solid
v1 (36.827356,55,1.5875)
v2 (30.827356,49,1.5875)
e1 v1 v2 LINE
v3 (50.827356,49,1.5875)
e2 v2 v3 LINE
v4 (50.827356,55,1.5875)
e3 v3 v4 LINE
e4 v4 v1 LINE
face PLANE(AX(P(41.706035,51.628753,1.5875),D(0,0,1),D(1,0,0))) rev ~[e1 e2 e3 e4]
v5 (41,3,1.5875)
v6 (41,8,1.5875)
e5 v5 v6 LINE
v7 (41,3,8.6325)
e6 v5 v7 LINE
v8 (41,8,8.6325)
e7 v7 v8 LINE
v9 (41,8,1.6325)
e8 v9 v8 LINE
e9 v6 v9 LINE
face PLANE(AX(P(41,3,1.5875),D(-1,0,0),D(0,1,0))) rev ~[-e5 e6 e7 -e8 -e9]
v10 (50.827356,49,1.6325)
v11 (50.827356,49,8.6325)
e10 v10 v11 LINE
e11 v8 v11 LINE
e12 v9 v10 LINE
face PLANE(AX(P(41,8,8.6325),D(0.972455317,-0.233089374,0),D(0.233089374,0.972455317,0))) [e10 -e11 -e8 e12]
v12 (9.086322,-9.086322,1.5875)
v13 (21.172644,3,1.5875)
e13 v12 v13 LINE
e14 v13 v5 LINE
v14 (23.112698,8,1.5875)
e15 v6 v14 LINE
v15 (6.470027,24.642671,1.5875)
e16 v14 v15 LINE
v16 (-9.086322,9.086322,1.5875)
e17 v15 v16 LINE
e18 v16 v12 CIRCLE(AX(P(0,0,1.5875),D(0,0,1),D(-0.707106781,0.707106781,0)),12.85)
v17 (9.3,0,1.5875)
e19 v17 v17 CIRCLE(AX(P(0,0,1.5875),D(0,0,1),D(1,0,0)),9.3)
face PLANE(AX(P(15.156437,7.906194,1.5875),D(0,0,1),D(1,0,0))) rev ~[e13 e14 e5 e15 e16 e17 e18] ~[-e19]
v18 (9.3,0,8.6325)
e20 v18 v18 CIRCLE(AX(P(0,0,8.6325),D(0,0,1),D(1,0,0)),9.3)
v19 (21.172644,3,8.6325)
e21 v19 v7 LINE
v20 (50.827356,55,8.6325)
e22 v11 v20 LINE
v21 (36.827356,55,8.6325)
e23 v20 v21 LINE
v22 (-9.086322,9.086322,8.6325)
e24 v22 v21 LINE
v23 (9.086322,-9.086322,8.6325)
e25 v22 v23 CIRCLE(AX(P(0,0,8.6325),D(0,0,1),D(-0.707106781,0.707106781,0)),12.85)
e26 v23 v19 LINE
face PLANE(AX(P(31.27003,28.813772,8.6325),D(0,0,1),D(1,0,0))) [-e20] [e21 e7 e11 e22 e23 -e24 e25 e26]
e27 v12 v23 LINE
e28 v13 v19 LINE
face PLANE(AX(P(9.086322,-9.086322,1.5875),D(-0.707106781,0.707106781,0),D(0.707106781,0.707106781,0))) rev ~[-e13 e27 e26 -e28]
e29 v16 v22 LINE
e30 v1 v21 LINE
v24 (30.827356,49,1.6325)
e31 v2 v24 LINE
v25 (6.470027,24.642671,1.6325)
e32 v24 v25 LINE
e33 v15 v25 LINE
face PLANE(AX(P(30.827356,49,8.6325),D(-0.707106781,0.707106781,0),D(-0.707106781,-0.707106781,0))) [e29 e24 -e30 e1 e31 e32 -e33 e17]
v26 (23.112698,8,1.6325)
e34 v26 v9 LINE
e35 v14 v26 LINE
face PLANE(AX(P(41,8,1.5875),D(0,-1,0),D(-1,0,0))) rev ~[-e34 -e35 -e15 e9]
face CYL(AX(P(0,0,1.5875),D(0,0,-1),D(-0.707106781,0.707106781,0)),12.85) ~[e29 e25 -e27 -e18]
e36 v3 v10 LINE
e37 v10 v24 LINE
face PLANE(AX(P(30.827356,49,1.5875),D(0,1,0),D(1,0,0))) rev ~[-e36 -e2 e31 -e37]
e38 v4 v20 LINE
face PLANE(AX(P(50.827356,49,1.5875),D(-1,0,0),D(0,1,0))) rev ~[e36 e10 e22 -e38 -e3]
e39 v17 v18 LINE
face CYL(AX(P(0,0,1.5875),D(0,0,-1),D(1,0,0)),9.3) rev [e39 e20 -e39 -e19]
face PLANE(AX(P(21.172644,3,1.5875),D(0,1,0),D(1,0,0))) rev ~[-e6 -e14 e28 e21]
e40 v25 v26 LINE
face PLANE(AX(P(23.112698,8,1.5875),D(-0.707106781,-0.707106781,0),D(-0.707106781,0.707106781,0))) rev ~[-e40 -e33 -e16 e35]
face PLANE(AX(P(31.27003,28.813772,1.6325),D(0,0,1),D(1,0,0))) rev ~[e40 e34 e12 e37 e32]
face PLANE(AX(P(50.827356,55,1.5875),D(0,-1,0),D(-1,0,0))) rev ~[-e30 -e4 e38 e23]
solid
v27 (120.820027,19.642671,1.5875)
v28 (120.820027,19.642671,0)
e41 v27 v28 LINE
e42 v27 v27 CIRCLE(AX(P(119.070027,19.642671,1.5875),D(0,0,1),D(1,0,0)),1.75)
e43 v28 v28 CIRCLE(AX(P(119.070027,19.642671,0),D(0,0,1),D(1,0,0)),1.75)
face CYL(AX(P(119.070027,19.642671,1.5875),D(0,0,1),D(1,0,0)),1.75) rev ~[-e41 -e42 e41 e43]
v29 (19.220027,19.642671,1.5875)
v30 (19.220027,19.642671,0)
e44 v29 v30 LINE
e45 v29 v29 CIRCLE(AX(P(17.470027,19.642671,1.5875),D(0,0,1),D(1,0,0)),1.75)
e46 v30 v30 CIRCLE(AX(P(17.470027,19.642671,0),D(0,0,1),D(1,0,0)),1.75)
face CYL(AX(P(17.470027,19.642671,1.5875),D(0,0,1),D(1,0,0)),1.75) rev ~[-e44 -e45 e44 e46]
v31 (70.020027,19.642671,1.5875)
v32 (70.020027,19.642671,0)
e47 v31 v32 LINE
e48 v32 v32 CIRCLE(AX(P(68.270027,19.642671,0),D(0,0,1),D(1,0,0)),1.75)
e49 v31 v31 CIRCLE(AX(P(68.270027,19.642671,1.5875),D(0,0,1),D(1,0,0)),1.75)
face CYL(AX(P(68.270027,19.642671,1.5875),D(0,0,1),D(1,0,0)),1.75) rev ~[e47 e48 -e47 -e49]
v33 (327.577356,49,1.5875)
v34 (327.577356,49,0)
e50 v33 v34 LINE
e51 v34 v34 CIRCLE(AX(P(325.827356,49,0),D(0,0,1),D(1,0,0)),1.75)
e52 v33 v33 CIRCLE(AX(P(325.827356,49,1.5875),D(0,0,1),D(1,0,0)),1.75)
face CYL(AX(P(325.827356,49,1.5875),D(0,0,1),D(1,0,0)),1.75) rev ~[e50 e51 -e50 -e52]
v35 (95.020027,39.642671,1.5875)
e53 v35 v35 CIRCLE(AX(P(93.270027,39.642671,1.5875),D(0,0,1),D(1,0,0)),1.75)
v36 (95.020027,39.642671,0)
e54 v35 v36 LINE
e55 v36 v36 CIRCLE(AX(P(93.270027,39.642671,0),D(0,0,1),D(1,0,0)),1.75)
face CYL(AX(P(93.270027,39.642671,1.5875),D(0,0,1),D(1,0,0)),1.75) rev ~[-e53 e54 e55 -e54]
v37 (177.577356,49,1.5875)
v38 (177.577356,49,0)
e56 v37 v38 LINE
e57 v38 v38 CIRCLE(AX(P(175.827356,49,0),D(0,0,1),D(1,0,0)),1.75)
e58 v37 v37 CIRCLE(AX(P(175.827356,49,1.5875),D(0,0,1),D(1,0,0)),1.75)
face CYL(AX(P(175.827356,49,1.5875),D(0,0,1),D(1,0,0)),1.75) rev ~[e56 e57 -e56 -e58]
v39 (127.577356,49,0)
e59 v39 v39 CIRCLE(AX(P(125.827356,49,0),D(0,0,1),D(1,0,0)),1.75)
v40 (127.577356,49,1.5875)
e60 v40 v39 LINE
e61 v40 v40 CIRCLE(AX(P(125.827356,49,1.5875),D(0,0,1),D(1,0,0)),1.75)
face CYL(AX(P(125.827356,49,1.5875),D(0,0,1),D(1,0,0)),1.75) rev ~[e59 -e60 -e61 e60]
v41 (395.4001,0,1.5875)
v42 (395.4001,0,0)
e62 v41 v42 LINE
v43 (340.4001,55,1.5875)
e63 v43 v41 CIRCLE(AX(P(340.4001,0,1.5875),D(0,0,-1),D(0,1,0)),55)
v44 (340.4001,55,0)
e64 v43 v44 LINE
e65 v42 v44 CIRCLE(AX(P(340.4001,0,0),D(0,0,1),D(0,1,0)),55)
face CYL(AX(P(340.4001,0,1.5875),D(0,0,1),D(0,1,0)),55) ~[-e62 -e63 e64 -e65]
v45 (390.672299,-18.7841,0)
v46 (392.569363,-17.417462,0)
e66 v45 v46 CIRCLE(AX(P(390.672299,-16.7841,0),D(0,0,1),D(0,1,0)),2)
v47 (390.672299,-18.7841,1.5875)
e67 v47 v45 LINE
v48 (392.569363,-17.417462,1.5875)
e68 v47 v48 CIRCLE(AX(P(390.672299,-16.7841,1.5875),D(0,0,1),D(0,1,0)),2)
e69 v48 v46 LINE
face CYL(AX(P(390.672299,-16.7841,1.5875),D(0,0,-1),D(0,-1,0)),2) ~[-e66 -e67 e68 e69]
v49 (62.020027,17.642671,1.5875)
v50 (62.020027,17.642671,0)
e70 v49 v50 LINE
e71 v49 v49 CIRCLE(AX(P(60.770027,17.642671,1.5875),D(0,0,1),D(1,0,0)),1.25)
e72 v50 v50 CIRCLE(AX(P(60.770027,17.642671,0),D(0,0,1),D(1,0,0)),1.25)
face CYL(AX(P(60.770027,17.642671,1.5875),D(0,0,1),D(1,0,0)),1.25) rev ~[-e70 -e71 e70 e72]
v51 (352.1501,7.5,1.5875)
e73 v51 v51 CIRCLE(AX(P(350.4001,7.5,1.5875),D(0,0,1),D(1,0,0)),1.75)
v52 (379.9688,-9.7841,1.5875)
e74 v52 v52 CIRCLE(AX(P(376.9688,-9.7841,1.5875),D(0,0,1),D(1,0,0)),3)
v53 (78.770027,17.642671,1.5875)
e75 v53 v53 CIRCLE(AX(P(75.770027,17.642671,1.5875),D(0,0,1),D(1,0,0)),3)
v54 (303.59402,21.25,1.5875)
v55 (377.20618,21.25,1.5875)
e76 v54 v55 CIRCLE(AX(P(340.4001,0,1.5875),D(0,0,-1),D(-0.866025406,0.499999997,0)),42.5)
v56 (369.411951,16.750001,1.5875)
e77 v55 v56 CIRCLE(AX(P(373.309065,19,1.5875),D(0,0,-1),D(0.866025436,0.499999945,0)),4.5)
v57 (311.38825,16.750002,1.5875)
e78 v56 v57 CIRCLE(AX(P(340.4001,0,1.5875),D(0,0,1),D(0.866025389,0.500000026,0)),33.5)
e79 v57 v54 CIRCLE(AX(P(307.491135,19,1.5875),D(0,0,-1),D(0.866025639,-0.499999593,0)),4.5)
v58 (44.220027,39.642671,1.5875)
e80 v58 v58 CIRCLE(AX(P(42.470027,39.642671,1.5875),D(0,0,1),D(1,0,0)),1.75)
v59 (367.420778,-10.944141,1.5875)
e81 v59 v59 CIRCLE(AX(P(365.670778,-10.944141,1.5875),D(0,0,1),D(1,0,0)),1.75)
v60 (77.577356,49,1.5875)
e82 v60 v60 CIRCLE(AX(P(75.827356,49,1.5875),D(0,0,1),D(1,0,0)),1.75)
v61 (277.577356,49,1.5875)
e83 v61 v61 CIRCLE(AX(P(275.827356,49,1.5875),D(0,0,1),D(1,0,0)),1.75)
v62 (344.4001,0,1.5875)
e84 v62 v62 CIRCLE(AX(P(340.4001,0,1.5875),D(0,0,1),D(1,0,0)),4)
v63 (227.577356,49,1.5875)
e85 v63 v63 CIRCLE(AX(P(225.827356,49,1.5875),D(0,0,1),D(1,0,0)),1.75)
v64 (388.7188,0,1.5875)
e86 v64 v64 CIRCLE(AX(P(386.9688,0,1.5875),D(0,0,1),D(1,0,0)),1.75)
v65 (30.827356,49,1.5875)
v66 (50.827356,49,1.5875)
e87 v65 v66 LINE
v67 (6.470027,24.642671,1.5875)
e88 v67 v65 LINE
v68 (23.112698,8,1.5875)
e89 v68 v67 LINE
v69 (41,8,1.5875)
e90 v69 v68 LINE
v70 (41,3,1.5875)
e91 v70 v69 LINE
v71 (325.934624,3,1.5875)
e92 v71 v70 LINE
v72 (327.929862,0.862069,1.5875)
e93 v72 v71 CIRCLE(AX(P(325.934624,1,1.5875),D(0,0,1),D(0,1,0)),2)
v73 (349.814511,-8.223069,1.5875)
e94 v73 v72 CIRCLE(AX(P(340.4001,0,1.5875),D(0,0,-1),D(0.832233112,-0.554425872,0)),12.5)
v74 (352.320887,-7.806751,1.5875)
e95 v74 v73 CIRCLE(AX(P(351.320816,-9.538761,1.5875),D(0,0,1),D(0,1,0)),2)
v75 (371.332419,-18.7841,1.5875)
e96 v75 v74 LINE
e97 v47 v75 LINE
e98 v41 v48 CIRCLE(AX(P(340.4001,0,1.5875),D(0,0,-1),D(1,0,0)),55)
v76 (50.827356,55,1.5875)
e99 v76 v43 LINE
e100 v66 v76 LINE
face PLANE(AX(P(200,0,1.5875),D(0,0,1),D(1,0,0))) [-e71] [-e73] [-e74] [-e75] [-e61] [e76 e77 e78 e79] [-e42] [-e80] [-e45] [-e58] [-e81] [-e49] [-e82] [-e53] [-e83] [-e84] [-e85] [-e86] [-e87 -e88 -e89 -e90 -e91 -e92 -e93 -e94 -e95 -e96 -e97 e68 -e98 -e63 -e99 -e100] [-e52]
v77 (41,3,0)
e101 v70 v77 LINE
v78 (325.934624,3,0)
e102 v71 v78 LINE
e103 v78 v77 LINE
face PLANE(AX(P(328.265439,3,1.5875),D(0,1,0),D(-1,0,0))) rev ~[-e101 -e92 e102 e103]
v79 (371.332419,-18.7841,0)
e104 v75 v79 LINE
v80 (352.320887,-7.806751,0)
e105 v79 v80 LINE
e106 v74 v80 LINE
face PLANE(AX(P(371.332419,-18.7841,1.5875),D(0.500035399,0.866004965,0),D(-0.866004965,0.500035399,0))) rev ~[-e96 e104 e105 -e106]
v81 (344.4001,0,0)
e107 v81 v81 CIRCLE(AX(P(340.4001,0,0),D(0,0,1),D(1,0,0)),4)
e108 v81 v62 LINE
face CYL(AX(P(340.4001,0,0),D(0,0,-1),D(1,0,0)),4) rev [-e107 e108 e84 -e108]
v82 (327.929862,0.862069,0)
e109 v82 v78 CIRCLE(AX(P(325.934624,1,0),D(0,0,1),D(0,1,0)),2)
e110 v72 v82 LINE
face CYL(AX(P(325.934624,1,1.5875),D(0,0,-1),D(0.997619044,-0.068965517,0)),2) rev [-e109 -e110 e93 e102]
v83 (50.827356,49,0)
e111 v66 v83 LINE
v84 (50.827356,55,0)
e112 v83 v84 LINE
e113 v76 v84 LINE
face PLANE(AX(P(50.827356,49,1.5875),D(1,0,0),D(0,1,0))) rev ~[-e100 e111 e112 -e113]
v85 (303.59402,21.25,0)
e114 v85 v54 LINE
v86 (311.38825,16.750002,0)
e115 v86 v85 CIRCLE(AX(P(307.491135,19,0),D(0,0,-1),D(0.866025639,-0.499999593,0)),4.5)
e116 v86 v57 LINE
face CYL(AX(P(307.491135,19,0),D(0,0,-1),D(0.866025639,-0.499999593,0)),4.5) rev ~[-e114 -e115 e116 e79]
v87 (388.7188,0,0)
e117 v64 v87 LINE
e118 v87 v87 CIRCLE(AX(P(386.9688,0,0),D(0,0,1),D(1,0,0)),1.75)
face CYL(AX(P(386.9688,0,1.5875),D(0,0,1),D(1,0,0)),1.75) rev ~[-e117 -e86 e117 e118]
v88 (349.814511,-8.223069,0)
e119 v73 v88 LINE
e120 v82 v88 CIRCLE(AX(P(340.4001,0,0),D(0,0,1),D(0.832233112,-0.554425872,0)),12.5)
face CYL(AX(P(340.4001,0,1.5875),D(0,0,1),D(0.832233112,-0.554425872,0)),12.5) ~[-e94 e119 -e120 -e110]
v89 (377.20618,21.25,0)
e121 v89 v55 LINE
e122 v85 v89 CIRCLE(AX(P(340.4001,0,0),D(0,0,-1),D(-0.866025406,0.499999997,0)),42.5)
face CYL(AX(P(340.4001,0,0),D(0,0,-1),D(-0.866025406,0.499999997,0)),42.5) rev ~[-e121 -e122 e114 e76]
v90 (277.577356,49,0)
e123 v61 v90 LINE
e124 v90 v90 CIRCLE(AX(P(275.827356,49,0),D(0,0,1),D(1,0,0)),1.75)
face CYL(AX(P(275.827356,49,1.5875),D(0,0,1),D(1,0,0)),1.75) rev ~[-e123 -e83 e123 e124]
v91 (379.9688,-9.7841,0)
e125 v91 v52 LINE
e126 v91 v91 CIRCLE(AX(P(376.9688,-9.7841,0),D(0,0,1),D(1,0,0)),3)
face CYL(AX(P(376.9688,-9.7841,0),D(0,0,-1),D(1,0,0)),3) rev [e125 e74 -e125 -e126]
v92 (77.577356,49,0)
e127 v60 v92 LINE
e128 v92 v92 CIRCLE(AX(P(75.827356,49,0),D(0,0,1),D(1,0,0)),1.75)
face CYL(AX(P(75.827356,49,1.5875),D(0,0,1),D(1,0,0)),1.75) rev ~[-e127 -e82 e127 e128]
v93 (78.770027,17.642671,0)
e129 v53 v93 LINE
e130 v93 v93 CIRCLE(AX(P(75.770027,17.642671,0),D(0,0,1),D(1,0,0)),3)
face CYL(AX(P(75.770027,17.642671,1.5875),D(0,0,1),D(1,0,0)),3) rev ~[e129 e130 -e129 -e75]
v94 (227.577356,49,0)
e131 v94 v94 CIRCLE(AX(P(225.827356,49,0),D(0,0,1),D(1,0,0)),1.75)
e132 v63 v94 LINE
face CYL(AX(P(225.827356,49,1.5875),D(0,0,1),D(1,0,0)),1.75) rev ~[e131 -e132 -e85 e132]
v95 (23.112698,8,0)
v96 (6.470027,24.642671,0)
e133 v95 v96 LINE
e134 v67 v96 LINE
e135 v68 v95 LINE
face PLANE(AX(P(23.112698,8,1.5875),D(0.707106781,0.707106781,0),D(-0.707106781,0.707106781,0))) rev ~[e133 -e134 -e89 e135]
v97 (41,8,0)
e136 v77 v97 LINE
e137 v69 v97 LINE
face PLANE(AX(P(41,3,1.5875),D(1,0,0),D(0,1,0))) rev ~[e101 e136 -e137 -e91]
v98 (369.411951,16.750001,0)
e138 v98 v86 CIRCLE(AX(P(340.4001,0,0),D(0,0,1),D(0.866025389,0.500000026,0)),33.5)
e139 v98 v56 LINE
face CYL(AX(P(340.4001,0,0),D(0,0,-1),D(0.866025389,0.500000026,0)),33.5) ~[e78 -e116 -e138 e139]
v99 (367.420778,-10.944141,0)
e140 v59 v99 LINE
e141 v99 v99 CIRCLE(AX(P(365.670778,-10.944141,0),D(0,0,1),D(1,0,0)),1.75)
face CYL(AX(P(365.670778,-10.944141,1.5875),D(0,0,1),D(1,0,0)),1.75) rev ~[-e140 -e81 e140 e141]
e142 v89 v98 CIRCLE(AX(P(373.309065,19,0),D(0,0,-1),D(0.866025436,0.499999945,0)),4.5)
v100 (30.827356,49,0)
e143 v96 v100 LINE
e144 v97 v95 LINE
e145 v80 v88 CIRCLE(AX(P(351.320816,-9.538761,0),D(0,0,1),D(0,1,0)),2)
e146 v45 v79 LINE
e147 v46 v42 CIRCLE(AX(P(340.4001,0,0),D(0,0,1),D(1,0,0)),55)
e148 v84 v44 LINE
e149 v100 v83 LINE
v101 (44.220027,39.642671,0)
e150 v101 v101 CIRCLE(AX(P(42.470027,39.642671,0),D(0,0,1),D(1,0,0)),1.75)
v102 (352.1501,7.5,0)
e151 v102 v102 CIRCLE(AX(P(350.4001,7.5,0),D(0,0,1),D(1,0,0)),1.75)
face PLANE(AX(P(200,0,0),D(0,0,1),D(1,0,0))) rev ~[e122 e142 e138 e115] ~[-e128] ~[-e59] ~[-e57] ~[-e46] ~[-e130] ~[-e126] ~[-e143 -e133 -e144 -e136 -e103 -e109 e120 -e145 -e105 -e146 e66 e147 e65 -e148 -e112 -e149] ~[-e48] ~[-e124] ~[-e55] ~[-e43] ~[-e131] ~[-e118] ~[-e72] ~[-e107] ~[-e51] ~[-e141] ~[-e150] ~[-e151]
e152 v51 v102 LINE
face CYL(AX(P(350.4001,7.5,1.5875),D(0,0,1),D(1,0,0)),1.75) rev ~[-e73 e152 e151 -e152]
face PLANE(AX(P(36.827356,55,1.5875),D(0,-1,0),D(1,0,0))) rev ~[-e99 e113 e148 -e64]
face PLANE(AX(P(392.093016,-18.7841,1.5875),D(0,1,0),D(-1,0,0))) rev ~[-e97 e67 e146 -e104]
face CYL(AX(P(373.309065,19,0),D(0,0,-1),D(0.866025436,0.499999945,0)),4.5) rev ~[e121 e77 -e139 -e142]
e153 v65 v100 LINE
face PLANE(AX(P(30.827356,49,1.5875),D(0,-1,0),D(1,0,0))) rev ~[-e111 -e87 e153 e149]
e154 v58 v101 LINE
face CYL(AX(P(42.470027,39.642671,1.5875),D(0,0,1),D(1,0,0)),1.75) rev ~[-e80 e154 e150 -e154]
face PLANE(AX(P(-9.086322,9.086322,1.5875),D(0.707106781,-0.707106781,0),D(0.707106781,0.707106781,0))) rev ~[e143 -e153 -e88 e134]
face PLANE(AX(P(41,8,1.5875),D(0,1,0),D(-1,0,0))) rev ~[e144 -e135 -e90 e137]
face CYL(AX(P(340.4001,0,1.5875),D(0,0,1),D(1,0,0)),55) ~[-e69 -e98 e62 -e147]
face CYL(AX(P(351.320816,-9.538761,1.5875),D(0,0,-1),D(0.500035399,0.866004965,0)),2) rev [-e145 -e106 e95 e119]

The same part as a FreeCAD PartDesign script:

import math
import FreeCAD as App
import Part
import Sketcher

V = App.Vector
Q = App.Units.Quantity


def edges_at(feature, points):
    """Names of the edges that pass closest to the given points."""
    edges = feature.Shape.Edges
    near = lambda p: min(range(len(edges)), key=lambda i: edges[i].distToShape(Part.Vertex(*p))[0])
    return sorted({f"Edge{near(p) + 1}" for p in points})


def add_polygon(sketch, points):
    """Adds a closed chain of lines whose ends are joined by coincident constraints."""
    first, n = sketch.GeometryCount, len(points)
    for a, b in zip(points, points[1:] + points[:1]):
        sketch.addGeometry(Part.LineSegment(App.Vector(*a, 0), App.Vector(*b, 0)), False)
    for i in range(n):
        sketch.addConstraint(Sketcher.Constraint("Coincident", first + i, 2, first + (i + 1) % n, 1))

doc = App.newDocument("Part")
body = doc.addObject("PartDesign::Body", "Body")

# Sketch on XY plane
sketch1 = doc.addObject("Sketcher::SketchObject", "Sketch")
body.addObject(sketch1)
sketch1.AttachmentSupport = (doc.XY_Plane, [""])
sketch1.MapMode = "FlatFace"
add_polygon(sketch1, [(-50, 75), (-50, -75), (450, -75), (450, 75)])  # lines 0-3
sketch1.addGeometry(Part.Circle(V(0, 0, 0), V(0, 0, 1), 9.3), False)  # 4
sketch1.addGeometry(Part.Circle(V(376.9688, -9.7841, 0), V(0, 0, 1), 3), False)  # 5
sketch1.addGeometry(Part.Circle(V(340.4001, 0, 0), V(0, 0, 1), 4), False)  # 6
sketch1.addGeometry(Part.ArcOfCircle(Part.Circle(V(307.491135, 19, 0), V(0, 0, 1), 4.5), math.radians(150.000002), math.radians(330.000027)), False)  # 7
sketch1.addGeometry(Part.ArcOfCircle(Part.Circle(V(340.4001, 0, 0), V(0, 0, 1), 42.5), math.radians(30), math.radians(150)), False)  # 8
sketch1.addGeometry(Part.ArcOfCircle(Part.Circle(V(373.309065, 19, 0), V(0, 0, 1), 4.5), math.radians(-150.000013), math.radians(29.999996)), False)  # 9
sketch1.addGeometry(Part.ArcOfCircle(Part.Circle(V(340.4001, 0, 0), V(0, 0, 1), 33.5), math.radians(30.000002), math.radians(149.999996)), False)  # 10
sketch1.addConstraint(Sketcher.Constraint("Tangent", 7, 1, 8, 2))
sketch1.addConstraint(Sketcher.Constraint("Tangent", 8, 1, 9, 2))
sketch1.addConstraint(Sketcher.Constraint("Tangent", 9, 1, 10, 1))
sketch1.addConstraint(Sketcher.Constraint("Tangent", 10, 2, 7, 2))
sketch1.addConstraint(Sketcher.Constraint("Vertical", 0))
sketch1.addConstraint(Sketcher.Constraint("Horizontal", 1))
sketch1.addConstraint(Sketcher.Constraint("Vertical", 2))
sketch1.addConstraint(Sketcher.Constraint("Horizontal", 3))
sketch1.addConstraint(Sketcher.Constraint("Coincident", 4, 3, -1, 1))
sketch1.addConstraint(Sketcher.Constraint("Coincident", 8, 3, 6, 3))
sketch1.addConstraint(Sketcher.Constraint("Coincident", 10, 3, 6, 3))
sketch1.addConstraint(Sketcher.Constraint("PointOnObject", 6, 3, -1))
sketch1.addConstraint(Sketcher.Constraint("Horizontal", 7, 3, 9, 3))
sketch1.addConstraint(Sketcher.Constraint("Diameter", 5, Q("6 mm")))
sketch1.addConstraint(Sketcher.Constraint("Diameter", 6, Q("8 mm")))
sketch1.addConstraint(Sketcher.Constraint("Diameter", 4, Q("18.6 mm")))
sketch1.addConstraint(Sketcher.Constraint("Radius", 7, Q("4.5 mm")))
sketch1.addConstraint(Sketcher.Constraint("Radius", 8, Q("42.5 mm")))
sketch1.addConstraint(Sketcher.Constraint("DistanceX", 1, 1, 1, 2, Q("500 mm")))
sketch1.addConstraint(Sketcher.Constraint("DistanceY", 0, 2, 0, 1, Q("150 mm")))
sketch1.addConstraint(Sketcher.Constraint("DistanceY", -1, 1, 7, 3, Q("19 mm")))
sketch1.addConstraint(Sketcher.Constraint("DistanceX", 0, 2, -1, 1, Q("50 mm")))
sketch1.addConstraint(Sketcher.Constraint("DistanceY", 0, 2, -1, 1, Q("75 mm")))
sketch1.addConstraint(Sketcher.Constraint("DistanceX", -1, 1, 5, 3, Q("376.9688 mm")))
sketch1.addConstraint(Sketcher.Constraint("DistanceY", 5, 3, -1, 1, Q("9.7841 mm")))
sketch1.addConstraint(Sketcher.Constraint("DistanceX", -1, 1, 6, 3, Q("340.4001 mm")))
pad1 = doc.addObject("PartDesign::Pad", "Pad")
body.addObject(pad1)
pad1.Profile = sketch1
pad1.Length = 1.5875

# Sketch on XY plane
sketch2 = doc.addObject("Sketcher::SketchObject", "Sketch001")
body.addObject(sketch2)
sketch2.AttachmentSupport = (doc.XY_Plane, [""])
sketch2.MapMode = "FlatFace"
sketch2.AttachmentOffset = App.Placement(V(0, 0, 1.5875), App.Rotation())
add_polygon(sketch2, [(-50, -75), (450, -75), (450, 75), (-50, 75)])  # lines 0-3
sketch2.addGeometry(Part.ArcOfCircle(Part.Circle(V(340, 0, 0), V(0, 0, 1), 55), math.radians(0), math.radians(90)), False)  # 4
sketch2.addGeometry(Part.ArcOfCircle(Part.Circle(V(340, 0, 0), V(0, 0, 1), 55), math.radians(-19.97), math.radians(0)), False)  # 5
sketch2.addGeometry(Part.LineSegment(V(392, -19, 0), V(371, -19, 0)), False)  # 6
sketch2.addGeometry(Part.LineSegment(V(371, -19, 0), V(351, -7, 0)), False)  # 7
sketch2.addGeometry(Part.ArcOfCircle(Part.Circle(V(340, 0, 0), V(0, 0, 1), 12), math.radians(166), math.radians(326)), False)  # 8
sketch2.addGeometry(Part.LineSegment(V(328, 3, 0), V(21, 3, 0)), False)  # 9
sketch2.addGeometry(Part.LineSegment(V(21, 3, 0), V(9, -9, 0)), False)  # 10
sketch2.addGeometry(Part.ArcOfCircle(Part.Circle(V(0, 0, 0), V(0, 0, 1), 13), math.radians(135), math.radians(315)), False)  # 11
sketch2.addGeometry(Part.LineSegment(V(-9, 9, 0), V(37, 55, 0)), False)  # 12
sketch2.addGeometry(Part.LineSegment(V(37, 55, 0), V(340, 55, 0)), False)  # 13
sketch2.addConstraint(Sketcher.Constraint("Tangent", 4, 1, 5, 2))
sketch2.addConstraint(Sketcher.Constraint("Coincident", 5, 1, 6, 1))
sketch2.addConstraint(Sketcher.Constraint("Coincident", 6, 2, 7, 1))
sketch2.addConstraint(Sketcher.Constraint("Coincident", 7, 2, 8, 2))
sketch2.addConstraint(Sketcher.Constraint("Coincident", 8, 1, 9, 1))
sketch2.addConstraint(Sketcher.Constraint("Coincident", 9, 2, 10, 1))
sketch2.addConstraint(Sketcher.Constraint("Tangent", 10, 2, 11, 2))
sketch2.addConstraint(Sketcher.Constraint("Tangent", 11, 1, 12, 1))
sketch2.addConstraint(Sketcher.Constraint("Coincident", 12, 2, 13, 1))
sketch2.addConstraint(Sketcher.Constraint("Tangent", 13, 2, 4, 2))
sketch2.addConstraint(Sketcher.Constraint("Horizontal", 0))
sketch2.addConstraint(Sketcher.Constraint("Vertical", 1))
sketch2.addConstraint(Sketcher.Constraint("Horizontal", 2))
sketch2.addConstraint(Sketcher.Constraint("Vertical", 3))
sketch2.addConstraint(Sketcher.Constraint("Horizontal", 6))
sketch2.addConstraint(Sketcher.Constraint("Horizontal", 9))
sketch2.addConstraint(Sketcher.Constraint("Horizontal", 13))
sketch2.addConstraint(Sketcher.Constraint("Coincident", 11, 3, -1, 1))
sketch2.addConstraint(Sketcher.Constraint("Coincident", 8, 3, 4, 3))
sketch2.addConstraint(Sketcher.Constraint("Equal", 4, 5))
sketch2.addConstraint(Sketcher.Constraint("PointOnObject", 4, 3, -1))
sketch2.addConstraint(Sketcher.Constraint("PointOnObject", 4, 1, -1))
sketch2.addConstraint(Sketcher.Constraint("Parallel", 10, 12))
sketch2.addConstraint(Sketcher.Constraint("Radius", 4, Q("55 mm")))
sketch2.addConstraint(Sketcher.Constraint("Radius", 8, Q("12.5 mm")))
sketch2.addConstraint(Sketcher.Constraint("DistanceX", 0, 1, 0, 2, Q("500 mm")))
sketch2.addConstraint(Sketcher.Constraint("DistanceY", 1, 1, 1, 2, Q("150 mm")))
sketch2.addConstraint(Sketcher.Constraint("Angle", 10, Q("-135 deg")))
sketch2.addConstraint(Sketcher.Constraint("Radius", 11, Q("12.85 mm")))
sketch2.addConstraint(Sketcher.Constraint("DistanceX", -1, 1, 0, 2, Q("450 mm")))
sketch2.addConstraint(Sketcher.Constraint("DistanceY", 0, 2, -1, 1, Q("75 mm")))
sketch2.addConstraint(Sketcher.Constraint("DistanceY", -1, 1, 8, 1, Q("3 mm")))
sketch2.addConstraint(Sketcher.Constraint("DistanceX", -1, 1, 4, 3, Q("340.4001 mm")))
sketch2.addConstraint(Sketcher.Constraint("DistanceY", 5, 1, -1, 1, Q("18.7841 mm")))
sketch2.addConstraint(Sketcher.Constraint("DistanceX", 6, 2, 6, 1, Q("20.760597 mm")))
sketch2.addConstraint(Sketcher.Constraint("Distance", 7, Q("23.705875 mm")))
pocket1 = doc.addObject("PartDesign::Pocket", "Pocket")
body.addObject(pocket1)
pocket1.Profile = sketch2
pocket1.Length = 7

# Sketch on XY plane
sketch3 = doc.addObject("Sketcher::SketchObject", "Sketch002")
body.addObject(sketch3)
sketch3.AttachmentSupport = (doc.XY_Plane, [""])
sketch3.MapMode = "FlatFace"
sketch3.AttachmentOffset = App.Placement(V(0, 0, 1.5875), App.Rotation())
sketch3.addGeometry(Part.LineSegment(V(41, 3, 0), V(41, 8, 0)), False)  # 0
sketch3.addGeometry(Part.LineSegment(V(41, 8, 0), V(23, 8, 0)), False)  # 1
sketch3.addGeometry(Part.LineSegment(V(23, 8, 0), V(6, 25, 0)), False)  # 2
sketch3.addGeometry(Part.LineSegment(V(6, 25, 0), V(-9, 9, 0)), False)  # 3
sketch3.addGeometry(Part.ArcOfCircle(Part.Circle(V(0, 0, 0), V(0, 0, 1), 13), math.radians(135), math.radians(315)), False)  # 4
sketch3.addGeometry(Part.LineSegment(V(9, -9, 0), V(21, 3, 0)), False)  # 5
sketch3.addGeometry(Part.LineSegment(V(21, 3, 0), V(41, 3, 0)), False)  # 6
sketch3.addGeometry(Part.Circle(V(0, 0, 0), V(0, 0, 1), 9), False)  # 7
add_polygon(sketch3, [(31, 49), (51, 49), (51, 55), (37, 55)])  # lines 8-11
sketch3.addConstraint(Sketcher.Constraint("Coincident", 0, 2, 1, 1))
sketch3.addConstraint(Sketcher.Constraint("Coincident", 1, 2, 2, 1))
sketch3.addConstraint(Sketcher.Constraint("Coincident", 2, 2, 3, 1))
sketch3.addConstraint(Sketcher.Constraint("Tangent", 3, 2, 4, 1))
sketch3.addConstraint(Sketcher.Constraint("Tangent", 4, 2, 5, 1))
sketch3.addConstraint(Sketcher.Constraint("Coincident", 5, 2, 6, 1))
sketch3.addConstraint(Sketcher.Constraint("Coincident", 6, 2, 0, 1))
sketch3.addConstraint(Sketcher.Constraint("Vertical", 0))
sketch3.addConstraint(Sketcher.Constraint("Horizontal", 1))
sketch3.addConstraint(Sketcher.Constraint("Horizontal", 6))
sketch3.addConstraint(Sketcher.Constraint("Horizontal", 8))
sketch3.addConstraint(Sketcher.Constraint("Vertical", 9))
sketch3.addConstraint(Sketcher.Constraint("Horizontal", 10))
sketch3.addConstraint(Sketcher.Constraint("Coincident", 4, 3, -1, 1))
sketch3.addConstraint(Sketcher.Constraint("Coincident", 7, 3, -1, 1))
sketch3.addConstraint(Sketcher.Constraint("Perpendicular", 2, 3))
sketch3.addConstraint(Sketcher.Constraint("Parallel", 3, 5))
sketch3.addConstraint(Sketcher.Constraint("Parallel", 5, 11))
sketch3.addConstraint(Sketcher.Constraint("Diameter", 7, Q("18.6 mm")))
sketch3.addConstraint(Sketcher.Constraint("DistanceX", 8, 1, 8, 2, Q("20 mm")))
sketch3.addConstraint(Sketcher.Constraint("DistanceX", 10, 2, 10, 1, Q("14 mm")))
sketch3.addConstraint(Sketcher.Constraint("DistanceY", 0, 1, 0, 2, Q("5 mm")))
sketch3.addConstraint(Sketcher.Constraint("DistanceY", 9, 1, 9, 2, Q("6 mm")))
sketch3.addConstraint(Sketcher.Constraint("Radius", 4, Q("12.85 mm")))
sketch3.addConstraint(Sketcher.Constraint("Distance", 3, Q("22 mm")))
sketch3.addConstraint(Sketcher.Constraint("DistanceX", -1, 1, 0, 2, Q("41 mm")))
sketch3.addConstraint(Sketcher.Constraint("DistanceY", -1, 1, 0, 2, Q("8 mm")))
sketch3.addConstraint(Sketcher.Constraint("DistanceY", -1, 1, 8, 2, Q("49 mm")))
sketch3.addConstraint(Sketcher.Constraint("DistanceX", 2, 2, 8, 2, Q("44.357329 mm")))
pocket2 = doc.addObject("PartDesign::Pocket", "Pocket001")
body.addObject(pocket2)
pocket2.Profile = sketch3
pocket2.Length = 10
doc.recompute()

fillet = doc.addObject("PartDesign::Fillet", "Fillet")
body.addObject(fillet)
fillet.Base = (pocket2, edges_at(pocket2, [(328.265, 3, 0.794), (350.803, -6.93, 0.794), (392.093, -18.784, 0.794)]))
fillet.Radius = 2

# Sketch on XY plane
sketch4 = doc.addObject("Sketcher::SketchObject", "Sketch003")
body.addObject(sketch4)
sketch4.AttachmentSupport = (doc.XY_Plane, [""])
sketch4.MapMode = "FlatFace"
sketch4.AttachmentOffset = App.Placement(V(0, 0, 1.5875), App.Rotation())
sketch4.addGeometry(Part.Circle(V(17.5, 19.6, 0), V(0, 0, 1), 1.8), False)
sketch4.addGeometry(Part.Circle(V(42.5, 39.6, 0), V(0, 0, 1), 1.8), False)
sketch4.addGeometry(Part.Circle(V(93.3, 39.6, 0), V(0, 0, 1), 1.8), False)
sketch4.addGeometry(Part.Circle(V(68.3, 19.6, 0), V(0, 0, 1), 1.8), False)
sketch4.addGeometry(Part.Circle(V(119.1, 19.6, 0), V(0, 0, 1), 1.8), False)
sketch4.addGeometry(Part.Circle(V(75.8, 17.6, 0), V(0, 0, 1), 3), False)
sketch4.addGeometry(Part.Circle(V(60.8, 17.6, 0), V(0, 0, 1), 1.2), False)
sketch4.addConstraint(Sketcher.Constraint("Equal", 0, 1))
sketch4.addConstraint(Sketcher.Constraint("Equal", 1, 2))
sketch4.addConstraint(Sketcher.Constraint("Equal", 2, 3))
sketch4.addConstraint(Sketcher.Constraint("Equal", 3, 4))
sketch4.addConstraint(Sketcher.Constraint("Horizontal", 1, 3, 2, 3))
sketch4.addConstraint(Sketcher.Constraint("Horizontal", 0, 3, 3, 3))
sketch4.addConstraint(Sketcher.Constraint("Horizontal", 3, 3, 4, 3))
sketch4.addConstraint(Sketcher.Constraint("Horizontal", 5, 3, 6, 3))
sketch4.addConstraint(Sketcher.Constraint("Diameter", 5, Q("6 mm")))
sketch4.addConstraint(Sketcher.Constraint("Diameter", 0, Q("3.5 mm")))
sketch4.addConstraint(Sketcher.Constraint("Diameter", 6, Q("2.5 mm")))
sketch4.addConstraint(Sketcher.Constraint("DistanceX", 0, 3, 1, 3, Q("25 mm")))
sketch4.addConstraint(Sketcher.Constraint("DistanceY", 0, 3, 1, 3, Q("20 mm")))
sketch4.addConstraint(Sketcher.Constraint("DistanceX", 3, 3, 2, 3, Q("25 mm")))
sketch4.addConstraint(Sketcher.Constraint("DistanceY", 5, 3, 3, 3, Q("2 mm")))
sketch4.addConstraint(Sketcher.Constraint("DistanceX", 6, 3, 5, 3, Q("15 mm")))
sketch4.addConstraint(Sketcher.Constraint("DistanceX", 1, 3, 2, 3, Q("50.8 mm")))
sketch4.addConstraint(Sketcher.Constraint("DistanceX", 2, 3, 4, 3, Q("25.8 mm")))
sketch4.addConstraint(Sketcher.Constraint("DistanceX", 3, 3, 5, 3, Q("7.5 mm")))
sketch4.addConstraint(Sketcher.Constraint("DistanceY", -1, 1, 0, 3, Q("19.642671 mm")))
sketch4.addConstraint(Sketcher.Constraint("DistanceX", -1, 1, 0, 3, Q("17.470027 mm")))
pocket3 = doc.addObject("PartDesign::Pocket", "Pocket002")
body.addObject(pocket3)
pocket3.Profile = sketch4
pocket3.Length = 10

# Sketch on XY plane
sketch5 = doc.addObject("Sketcher::SketchObject", "Sketch004")
body.addObject(sketch5)
sketch5.AttachmentSupport = (doc.XY_Plane, [""])
sketch5.MapMode = "FlatFace"
sketch5.AttachmentOffset = App.Placement(V(0, 0, 1.5875), App.Rotation())
sketch5.addGeometry(Part.Circle(V(340.4, 0, 0), V(0, 0, 1), 4), False)
sketch5.addGeometry(Part.Circle(V(377, -9.8, 0), V(0, 0, 1), 3), False)
sketch5.addGeometry(Part.Circle(V(350.4, 7.5, 0), V(0, 0, 1), 1.8), False)
sketch5.addGeometry(Part.Circle(V(387, 0, 0), V(0, 0, 1), 1.8), False)
sketch5.addGeometry(Part.Circle(V(365.7, -10.9, 0), V(0, 0, 1), 1.8), False)
sketch5.addConstraint(Sketcher.Constraint("Equal", 2, 3))
sketch5.addConstraint(Sketcher.Constraint("Equal", 3, 4))
sketch5.addConstraint(Sketcher.Constraint("PointOnObject", 0, 3, -1))
sketch5.addConstraint(Sketcher.Constraint("PointOnObject", 3, 3, -1))
sketch5.addConstraint(Sketcher.Constraint("Diameter", 0, Q("8 mm")))
sketch5.addConstraint(Sketcher.Constraint("Diameter", 1, Q("6 mm")))
sketch5.addConstraint(Sketcher.Constraint("Diameter", 2, Q("3.5 mm")))
sketch5.addConstraint(Sketcher.Constraint("DistanceX", 0, 3, 2, 3, Q("10 mm")))
sketch5.addConstraint(Sketcher.Constraint("DistanceX", 1, 3, 3, 3, Q("10 mm")))
sketch5.addConstraint(Sketcher.Constraint("DistanceY", -1, 1, 2, 3, Q("7.5 mm")))
sketch5.addConstraint(Sketcher.Constraint("DistanceX", -1, 1, 0, 3, Q("340.4001 mm")))
sketch5.addConstraint(Sketcher.Constraint("DistanceX", -1, 1, 1, 3, Q("376.9688 mm")))
sketch5.addConstraint(Sketcher.Constraint("DistanceY", 1, 3, -1, 1, Q("9.7841 mm")))
sketch5.addConstraint(Sketcher.Constraint("DistanceX", -1, 1, 4, 3, Q("365.670778 mm")))
sketch5.addConstraint(Sketcher.Constraint("DistanceY", 4, 3, -1, 1, Q("10.944141 mm")))
pocket4 = doc.addObject("PartDesign::Pocket", "Pocket003")
body.addObject(pocket4)
pocket4.Profile = sketch5
pocket4.Length = 10

# Sketch on XY plane
sketch6 = doc.addObject("Sketcher::SketchObject", "Sketch005")
body.addObject(sketch6)
sketch6.AttachmentSupport = (doc.XY_Plane, [""])
sketch6.MapMode = "FlatFace"
sketch6.AttachmentOffset = App.Placement(V(0, 0, 1.5875), App.Rotation())
sketch6.addGeometry(Part.Circle(V(75.8, 49, 0), V(0, 0, 1), 1.8), False)
sketch6.addGeometry(Part.Circle(V(125.8, 49, 0), V(0, 0, 1), 1.8), False)
sketch6.addGeometry(Part.Circle(V(175.8, 49, 0), V(0, 0, 1), 1.8), False)
sketch6.addGeometry(Part.Circle(V(225.8, 49, 0), V(0, 0, 1), 1.8), False)
sketch6.addGeometry(Part.Circle(V(275.8, 49, 0), V(0, 0, 1), 1.8), False)
sketch6.addGeometry(Part.Circle(V(325.8, 49, 0), V(0, 0, 1), 1.8), False)
sketch6.addConstraint(Sketcher.Constraint("Equal", 0, 1))
sketch6.addConstraint(Sketcher.Constraint("Equal", 1, 2))
sketch6.addConstraint(Sketcher.Constraint("Equal", 2, 3))
sketch6.addConstraint(Sketcher.Constraint("Equal", 3, 4))
sketch6.addConstraint(Sketcher.Constraint("Equal", 4, 5))
sketch6.addConstraint(Sketcher.Constraint("Horizontal", 0, 3, 1, 3))
sketch6.addConstraint(Sketcher.Constraint("Horizontal", 1, 3, 2, 3))
sketch6.addConstraint(Sketcher.Constraint("Horizontal", 2, 3, 3, 3))
sketch6.addConstraint(Sketcher.Constraint("Horizontal", 3, 3, 4, 3))
sketch6.addConstraint(Sketcher.Constraint("Horizontal", 4, 3, 5, 3))
sketch6.addConstraint(Sketcher.Constraint("Diameter", 0, Q("3.5 mm")))
sketch6.addConstraint(Sketcher.Constraint("DistanceY", -1, 1, 0, 3, Q("49 mm")))
sketch6.addConstraint(Sketcher.Constraint("DistanceX", 0, 3, 1, 3, Q("50 mm")))
sketch6.addConstraint(Sketcher.Constraint("DistanceX", 1, 3, 2, 3, Q("50 mm")))
sketch6.addConstraint(Sketcher.Constraint("DistanceX", 2, 3, 3, 3, Q("50 mm")))
sketch6.addConstraint(Sketcher.Constraint("DistanceX", 3, 3, 4, 3, Q("50 mm")))
sketch6.addConstraint(Sketcher.Constraint("DistanceX", 4, 3, 5, 3, Q("50 mm")))
sketch6.addConstraint(Sketcher.Constraint("DistanceX", -1, 1, 0, 3, Q("75.827356 mm")))
pocket5 = doc.addObject("PartDesign::Pocket", "Pocket004")
body.addObject(pocket5)
pocket5.Profile = sketch6
pocket5.Length = 246.38
body2 = doc.addObject("PartDesign::Body", "Body001")
body2.AllowCompound = True

# Sketch on XY plane
sketch7 = doc.addObject("Sketcher::SketchObject", "Sketch006")
body2.addObject(sketch7)
sketch7.AttachmentSupport = (doc.getObject("XY_Plane001"), [""])
sketch7.MapMode = "FlatFace"
sketch7.AttachmentOffset = App.Placement(V(0, 0, 1.5875), App.Rotation())
add_polygon(sketch7, [(31, 49), (51, 49), (51, 55), (37, 55)])  # lines 0-3
sketch7.addGeometry(Part.LineSegment(V(41, 3, 0), V(41, 8, 0)), False)  # 4
sketch7.addGeometry(Part.LineSegment(V(41, 8, 0), V(23, 8, 0)), False)  # 5
sketch7.addGeometry(Part.LineSegment(V(23, 8, 0), V(6, 25, 0)), False)  # 6
sketch7.addGeometry(Part.LineSegment(V(6, 25, 0), V(-9, 9, 0)), False)  # 7
sketch7.addGeometry(Part.ArcOfCircle(Part.Circle(V(0, 0, 0), V(0, 0, 1), 13), math.radians(135), math.radians(315)), False)  # 8
sketch7.addGeometry(Part.LineSegment(V(9, -9, 0), V(21, 3, 0)), False)  # 9
sketch7.addGeometry(Part.LineSegment(V(21, 3, 0), V(41, 3, 0)), False)  # 10
sketch7.addGeometry(Part.Circle(V(0, 0, 0), V(0, 0, 1), 9), False)  # 11
sketch7.addConstraint(Sketcher.Constraint("Coincident", 4, 2, 5, 1))
sketch7.addConstraint(Sketcher.Constraint("Coincident", 5, 2, 6, 1))
sketch7.addConstraint(Sketcher.Constraint("Coincident", 6, 2, 7, 1))
sketch7.addConstraint(Sketcher.Constraint("Tangent", 7, 2, 8, 1))
sketch7.addConstraint(Sketcher.Constraint("Tangent", 8, 2, 9, 1))
sketch7.addConstraint(Sketcher.Constraint("Coincident", 9, 2, 10, 1))
sketch7.addConstraint(Sketcher.Constraint("Coincident", 10, 2, 4, 1))
sketch7.addConstraint(Sketcher.Constraint("Horizontal", 0))
sketch7.addConstraint(Sketcher.Constraint("Vertical", 1))
sketch7.addConstraint(Sketcher.Constraint("Horizontal", 2))
sketch7.addConstraint(Sketcher.Constraint("Vertical", 4))
sketch7.addConstraint(Sketcher.Constraint("Horizontal", 5))
sketch7.addConstraint(Sketcher.Constraint("Horizontal", 10))
sketch7.addConstraint(Sketcher.Constraint("Coincident", 8, 3, -1, 1))
sketch7.addConstraint(Sketcher.Constraint("Coincident", 11, 3, -1, 1))
sketch7.addConstraint(Sketcher.Constraint("Perpendicular", 3, 6))
sketch7.addConstraint(Sketcher.Constraint("Perpendicular", 6, 7))
sketch7.addConstraint(Sketcher.Constraint("Parallel", 7, 9))
sketch7.addConstraint(Sketcher.Constraint("Diameter", 11, Q("18.6 mm")))
sketch7.addConstraint(Sketcher.Constraint("DistanceX", 0, 1, 0, 2, Q("20 mm")))
sketch7.addConstraint(Sketcher.Constraint("DistanceX", 2, 2, 2, 1, Q("14 mm")))
sketch7.addConstraint(Sketcher.Constraint("DistanceY", 1, 1, 1, 2, Q("6 mm")))
sketch7.addConstraint(Sketcher.Constraint("DistanceY", 4, 1, 4, 2, Q("5 mm")))
sketch7.addConstraint(Sketcher.Constraint("Radius", 8, Q("12.85 mm")))
sketch7.addConstraint(Sketcher.Constraint("Distance", 7, Q("22 mm")))
sketch7.addConstraint(Sketcher.Constraint("DistanceY", -1, 1, 0, 2, Q("49 mm")))
sketch7.addConstraint(Sketcher.Constraint("DistanceX", -1, 1, 4, 2, Q("41 mm")))
sketch7.addConstraint(Sketcher.Constraint("DistanceY", -1, 1, 4, 2, Q("8 mm")))
sketch7.addConstraint(Sketcher.Constraint("DistanceX", 6, 2, 3, 2, Q("24.357329 mm")))
pad2 = doc.addObject("PartDesign::Pad", "Pad001")
body2.addObject(pad2)
pad2.Profile = sketch7
pad2.Length = 7.045

# Sketch on XY plane
sketch8 = doc.addObject("Sketcher::SketchObject", "Sketch007")
body2.addObject(sketch8)
sketch8.AttachmentSupport = (doc.getObject("XY_Plane001"), [""])
sketch8.MapMode = "FlatFace"
sketch8.AttachmentOffset = App.Placement(V(0, 0, 8.6325), App.Rotation())
add_polygon(sketch8, [(51, 49), (31, 49), (6, 25), (23, 8), (41, 8)])  # lines 0-4
sketch8.addConstraint(Sketcher.Constraint("Horizontal", 0))
sketch8.addConstraint(Sketcher.Constraint("Horizontal", 3))
sketch8.addConstraint(Sketcher.Constraint("Perpendicular", 1, 2))
sketch8.addConstraint(Sketcher.Constraint("DistanceX", 0, 2, 0, 1, Q("20 mm")))
sketch8.addConstraint(Sketcher.Constraint("Angle", 1, Q("-135 deg")))
sketch8.addConstraint(Sketcher.Constraint("DistanceY", -1, 1, 0, 2, Q("49 mm")))
sketch8.addConstraint(Sketcher.Constraint("DistanceY", -1, 1, 2, 2, Q("8 mm")))
sketch8.addConstraint(Sketcher.Constraint("DistanceX", -1, 1, 3, 2, Q("41 mm")))
sketch8.addConstraint(Sketcher.Constraint("DistanceX", 3, 1, 3, 2, Q("17.887302 mm")))
sketch8.addConstraint(Sketcher.Constraint("Distance", 2, Q("23.536292 mm")))
pad3 = doc.addObject("PartDesign::Pad", "Pad002")
body2.addObject(pad3)
pad3.Profile = sketch8
pad3.Length = 7
pad3.Reversed = True

doc.recompute()
